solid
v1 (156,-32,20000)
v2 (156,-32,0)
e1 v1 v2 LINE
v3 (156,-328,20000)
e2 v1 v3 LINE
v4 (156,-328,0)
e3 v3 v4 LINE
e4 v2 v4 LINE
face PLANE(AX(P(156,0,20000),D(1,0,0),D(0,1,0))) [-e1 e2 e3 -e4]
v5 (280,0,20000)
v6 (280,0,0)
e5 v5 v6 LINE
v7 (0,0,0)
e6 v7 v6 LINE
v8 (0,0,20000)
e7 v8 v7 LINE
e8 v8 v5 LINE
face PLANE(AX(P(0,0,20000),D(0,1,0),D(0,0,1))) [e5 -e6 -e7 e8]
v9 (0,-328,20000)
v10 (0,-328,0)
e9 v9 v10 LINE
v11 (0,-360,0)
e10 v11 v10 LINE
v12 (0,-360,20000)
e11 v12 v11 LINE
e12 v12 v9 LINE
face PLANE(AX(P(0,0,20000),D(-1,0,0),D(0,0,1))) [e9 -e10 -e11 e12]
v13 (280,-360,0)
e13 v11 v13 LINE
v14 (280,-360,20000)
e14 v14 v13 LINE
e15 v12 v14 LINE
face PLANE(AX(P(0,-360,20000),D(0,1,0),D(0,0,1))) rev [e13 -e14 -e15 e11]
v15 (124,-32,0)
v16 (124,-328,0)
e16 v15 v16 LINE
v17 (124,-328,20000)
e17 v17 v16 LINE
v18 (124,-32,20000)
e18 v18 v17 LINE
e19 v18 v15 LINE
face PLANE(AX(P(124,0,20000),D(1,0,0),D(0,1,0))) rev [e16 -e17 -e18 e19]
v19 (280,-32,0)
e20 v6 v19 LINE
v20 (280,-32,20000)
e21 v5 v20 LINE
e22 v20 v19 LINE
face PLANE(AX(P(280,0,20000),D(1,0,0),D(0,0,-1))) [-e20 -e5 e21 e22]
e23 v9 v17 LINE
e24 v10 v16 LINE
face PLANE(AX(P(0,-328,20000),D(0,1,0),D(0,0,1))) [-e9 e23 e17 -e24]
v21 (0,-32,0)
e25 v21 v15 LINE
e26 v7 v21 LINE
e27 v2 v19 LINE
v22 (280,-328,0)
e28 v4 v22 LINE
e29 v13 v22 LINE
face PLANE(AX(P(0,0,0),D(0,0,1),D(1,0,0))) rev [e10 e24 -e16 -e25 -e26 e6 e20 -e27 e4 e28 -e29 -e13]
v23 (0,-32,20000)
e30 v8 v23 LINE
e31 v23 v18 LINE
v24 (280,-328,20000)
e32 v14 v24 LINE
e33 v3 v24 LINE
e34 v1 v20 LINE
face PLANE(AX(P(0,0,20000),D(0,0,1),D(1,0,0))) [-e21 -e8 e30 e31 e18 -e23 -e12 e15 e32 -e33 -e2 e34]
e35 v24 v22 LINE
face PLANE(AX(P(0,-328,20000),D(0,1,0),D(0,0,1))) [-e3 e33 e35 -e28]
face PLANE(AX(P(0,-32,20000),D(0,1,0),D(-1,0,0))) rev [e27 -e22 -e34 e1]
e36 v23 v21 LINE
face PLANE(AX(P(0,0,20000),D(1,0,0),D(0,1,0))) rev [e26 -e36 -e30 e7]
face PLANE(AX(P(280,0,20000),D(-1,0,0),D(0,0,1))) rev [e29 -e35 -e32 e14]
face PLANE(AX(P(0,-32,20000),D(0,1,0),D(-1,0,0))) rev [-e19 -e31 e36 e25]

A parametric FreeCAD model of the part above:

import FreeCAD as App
import Part
import Sketcher

V = App.Vector


def add_polygon(sketch, points):
    """Adds a closed chain of lines whose ends are joined by coincident constraints."""
    first, n = sketch.GeometryCount, len(points)
    for a, b in zip(points, points[1:] + points[:1]):
        sketch.addGeometry(Part.LineSegment(App.Vector(*a, 0), App.Vector(*b, 0)), False)
    for i in range(n):
        sketch.addConstraint(Sketcher.Constraint("Coincident", first + i, 2, first + (i + 1) % n, 1))

doc = App.newDocument("Part")
body = doc.addObject("PartDesign::Body", "Body")

# Sketch on XY plane
sketch1 = body.newObject("Sketcher::SketchObject", "Sketch")
sketch1.AttachmentSupport = (doc.getObject("XY_Plane"), [""])
sketch1.MapMode = "FlatFace"
add_polygon(sketch1, [(280, -328), (156, -328), (156, -32), (280, -32), (280, 0), (0, 0), (0, -32), (124, -32), (124, -328), (0, -328), (0, -360), (280, -360)])  # lines 0-11
sketch1.addConstraint([
    Sketcher.Constraint("Horizontal", 0),
    Sketcher.Constraint("Vertical", 1),
    Sketcher.Constraint("Horizontal", 2),
    Sketcher.Constraint("Vertical", 3),
    Sketcher.Constraint("Horizontal", 4),
    Sketcher.Constraint("Vertical", 5),
    Sketcher.Constraint("Horizontal", 6),
    Sketcher.Constraint("Vertical", 7),
    Sketcher.Constraint("Horizontal", 8),
    Sketcher.Constraint("Vertical", 9),
    Sketcher.Constraint("Horizontal", 10),
    Sketcher.Constraint("Vertical", 11),
    Sketcher.Constraint("Coincident", 4, 2, -1, 1),
    Sketcher.Constraint("PointOnObject", 8, 2, -2),
    Sketcher.Constraint("Horizontal", 2, 2, 5, 2),
    Sketcher.Constraint("Horizontal", 0, 2, 7, 2),
    Sketcher.Constraint("Vertical", 3, 2, 10, 2),
    Sketcher.Constraint("Equal", 2, 6),
    Sketcher.Constraint("Equal", 5, 9),
    Sketcher.Constraint("DistanceX", 0, 2, 0, 1, 124.0),
    Sketcher.Constraint("DistanceX", 4, 2, 4, 1, 280.0),
    Sketcher.Constraint("DistanceY", 1, 1, 1, 2, 296.0),
    Sketcher.Constraint("DistanceY", 3, 1, 3, 2, 32.0),
])
pad1 = body.newObject("PartDesign::Pad", "Pad")
pad1.Profile = sketch1
pad1.Length = 20000

doc.recompute()
